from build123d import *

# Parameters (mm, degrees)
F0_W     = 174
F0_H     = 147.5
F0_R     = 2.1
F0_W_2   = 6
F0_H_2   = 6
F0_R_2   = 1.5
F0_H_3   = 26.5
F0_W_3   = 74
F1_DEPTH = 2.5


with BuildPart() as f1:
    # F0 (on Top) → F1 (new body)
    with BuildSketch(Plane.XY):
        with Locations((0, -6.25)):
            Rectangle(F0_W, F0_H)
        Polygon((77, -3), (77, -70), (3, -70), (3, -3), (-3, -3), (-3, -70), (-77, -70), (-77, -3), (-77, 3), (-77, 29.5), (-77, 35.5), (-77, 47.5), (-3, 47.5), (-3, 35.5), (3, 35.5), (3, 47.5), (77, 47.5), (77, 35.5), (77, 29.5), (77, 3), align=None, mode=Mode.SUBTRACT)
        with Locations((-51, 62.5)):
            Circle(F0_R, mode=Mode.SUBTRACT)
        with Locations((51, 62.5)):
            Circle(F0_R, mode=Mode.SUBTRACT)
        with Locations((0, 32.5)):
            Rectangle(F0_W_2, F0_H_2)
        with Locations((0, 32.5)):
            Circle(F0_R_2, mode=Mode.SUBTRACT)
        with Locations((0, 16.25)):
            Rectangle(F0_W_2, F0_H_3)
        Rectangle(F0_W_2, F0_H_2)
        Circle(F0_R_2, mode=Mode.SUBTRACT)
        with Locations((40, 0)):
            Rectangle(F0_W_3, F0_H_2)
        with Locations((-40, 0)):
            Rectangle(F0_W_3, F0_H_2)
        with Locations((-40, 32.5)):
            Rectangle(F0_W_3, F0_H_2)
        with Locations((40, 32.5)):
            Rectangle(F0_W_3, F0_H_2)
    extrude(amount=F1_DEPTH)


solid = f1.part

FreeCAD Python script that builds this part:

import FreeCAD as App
import Part
import Sketcher
from FreeCAD import Vector


def add_polygon(sketch, points):
    """Adds a closed chain of lines whose ends are joined by coincident constraints."""
    first, n = sketch.GeometryCount, len(points)
    for a, b in zip(points, points[1:] + points[:1]):
        sketch.addGeometry(Part.LineSegment(App.Vector(*a, 0), App.Vector(*b, 0)), False)
    for i in range(n):
        sketch.addConstraint(Sketcher.Constraint("Coincident", first + i, 2, first + (i + 1) % n, 1))

doc = App.newDocument("Part")
body = doc.addObject("PartDesign::Body", "Body")

sketch1 = body.newObject("Sketcher::SketchObject", "Sketch")
sketch1.AttachmentSupport = (doc.getObject("XY_Plane"), [""])
sketch1.MapMode = "FlatFace"
add_polygon(sketch1, [(-87, 67.5), (-87, -80), (87, -80), (87, 67.5)])
add_polygon(sketch1, [(-3, -70), (-77, -70), (-77, -3), (-3, -3)])
add_polygon(sketch1, [(-77, 3), (-77, 29.5), (-3, 29.5), (-3, 3)])
add_polygon(sketch1, [(-77, 35.5), (-77, 47.5), (-3, 47.5), (-3, 35.5)])
add_polygon(sketch1, [(77, 47.5), (77, 35.5), (3, 35.5), (3, 47.5)])
add_polygon(sketch1, [(77, 29.5), (77, 3), (3, 3), (3, 29.5)])
add_polygon(sketch1, [(77, -3), (77, -70), (3, -70), (3, -3)])
sketch1.addGeometry(Part.Circle(Vector(-51, 62.5, 0), Vector(0, 0, 1), 2.1), False)
sketch1.addGeometry(Part.Circle(Vector(0, 0, 0), Vector(0, 0, 1), 1.5), False)
sketch1.addGeometry(Part.Circle(Vector(0, 32.5, 0), Vector(0, 0, 1), 1.5), False)
sketch1.addGeometry(Part.Circle(Vector(51, 62.5, 0), Vector(0, 0, 1), 2.1), False)
sketch1.addConstraint([
    Sketcher.Constraint("Vertical", 0),
    Sketcher.Constraint("Horizontal", 1),
    Sketcher.Constraint("Vertical", 2),
    Sketcher.Constraint("Horizontal", 3),
    Sketcher.Constraint("Horizontal", 4),
    Sketcher.Constraint("Vertical", 5),
    Sketcher.Constraint("Horizontal", 6),
    Sketcher.Constraint("Vertical", 7),
    Sketcher.Constraint("Vertical", 8),
    Sketcher.Constraint("Horizontal", 9),
    Sketcher.Constraint("Vertical", 10),
    Sketcher.Constraint("Horizontal", 11),
    Sketcher.Constraint("Vertical", 12),
    Sketcher.Constraint("Horizontal", 13),
    Sketcher.Constraint("Vertical", 14),
    Sketcher.Constraint("Horizontal", 15),
    Sketcher.Constraint("Vertical", 16),
    Sketcher.Constraint("Horizontal", 17),
    Sketcher.Constraint("Vertical", 18),
    Sketcher.Constraint("Horizontal", 19),
    Sketcher.Constraint("Vertical", 20),
    Sketcher.Constraint("Horizontal", 21),
    Sketcher.Constraint("Vertical", 22),
    Sketcher.Constraint("Horizontal", 23),
    Sketcher.Constraint("Vertical", 24),
    Sketcher.Constraint("Horizontal", 25),
    Sketcher.Constraint("Vertical", 26),
    Sketcher.Constraint("Horizontal", 27),
    Sketcher.Constraint("Coincident", 29, 3, -1, 1),
    Sketcher.Constraint("Equal", 29, 30),
    Sketcher.Constraint("Equal", 28, 31),
    Sketcher.Constraint("Symmetric", 5, 2, 20, 2, -1, 1),
    Sketcher.Constraint("Symmetric", 10, 2, 26, 2, -1, 1),
    Sketcher.Constraint("Symmetric", 28, 3, 31, 3, -2),
    Sketcher.Constraint("Symmetric", 15, 2, 16, 2, -2),
    Sketcher.Constraint("Symmetric", 13, 2, 18, 2, -2),
    Sketcher.Constraint("Symmetric", 11, 2, 20, 2, -2),
    Sketcher.Constraint("Symmetric", 9, 2, 22, 2, -2),
    Sketcher.Constraint("Symmetric", 4, 2, 24, 2, -2),
    Sketcher.Constraint("PointOnObject", 30, 3, -2),
    Sketcher.Constraint("Vertical", 7, 2, 9, 2),
    Sketcher.Constraint("Vertical", 11, 2, 12, 2),
    Sketcher.Constraint("Vertical", 10, 2, 13, 2),
    Sketcher.Constraint("Diameter", 29, 3.0),
    Sketcher.Constraint("Diameter", 28, 4.2),
    Sketcher.Constraint("DistanceX", 1, 1, 1, 2, 174.0),
    Sketcher.Constraint("DistanceX", 4, 2, 4, 1, 74.0),
    Sketcher.Constraint("DistanceY", 5, 1, 5, 2, 67.0),
    Sketcher.Constraint("DistanceY", 12, 1, 12, 2, 12.0),
    Sketcher.Constraint("DistanceY", 0, 2, 0, 1, 147.5),
    Sketcher.Constraint("DistanceY", 8, 1, 8, 2, 26.5),
    Sketcher.Constraint("DistanceX", 28, 3, -1, 1, 51.0),
    Sketcher.Constraint("DistanceX", 0, 2, -1, 1, 87.0),
    Sketcher.Constraint("DistanceY", 0, 2, -1, 1, 80.0),
    Sketcher.Constraint("DistanceX", 4, 2, -1, 1, 77.0),
    Sketcher.Constraint("DistanceY", 4, 2, -1, 1, 70.0),
    Sketcher.Constraint("DistanceY", 30, 3, 28, 3, 30.0),
    Sketcher.Constraint("DistanceY", 31, 3, 2, 2, 5.0),
    Sketcher.Constraint("DistanceY", 8, 2, 12, 2, 18.0),
])
pad1 = body.newObject("PartDesign::Pad", "Pad")
pad1.Profile = sketch1
pad1.Length = 2.5

doc.recompute()
